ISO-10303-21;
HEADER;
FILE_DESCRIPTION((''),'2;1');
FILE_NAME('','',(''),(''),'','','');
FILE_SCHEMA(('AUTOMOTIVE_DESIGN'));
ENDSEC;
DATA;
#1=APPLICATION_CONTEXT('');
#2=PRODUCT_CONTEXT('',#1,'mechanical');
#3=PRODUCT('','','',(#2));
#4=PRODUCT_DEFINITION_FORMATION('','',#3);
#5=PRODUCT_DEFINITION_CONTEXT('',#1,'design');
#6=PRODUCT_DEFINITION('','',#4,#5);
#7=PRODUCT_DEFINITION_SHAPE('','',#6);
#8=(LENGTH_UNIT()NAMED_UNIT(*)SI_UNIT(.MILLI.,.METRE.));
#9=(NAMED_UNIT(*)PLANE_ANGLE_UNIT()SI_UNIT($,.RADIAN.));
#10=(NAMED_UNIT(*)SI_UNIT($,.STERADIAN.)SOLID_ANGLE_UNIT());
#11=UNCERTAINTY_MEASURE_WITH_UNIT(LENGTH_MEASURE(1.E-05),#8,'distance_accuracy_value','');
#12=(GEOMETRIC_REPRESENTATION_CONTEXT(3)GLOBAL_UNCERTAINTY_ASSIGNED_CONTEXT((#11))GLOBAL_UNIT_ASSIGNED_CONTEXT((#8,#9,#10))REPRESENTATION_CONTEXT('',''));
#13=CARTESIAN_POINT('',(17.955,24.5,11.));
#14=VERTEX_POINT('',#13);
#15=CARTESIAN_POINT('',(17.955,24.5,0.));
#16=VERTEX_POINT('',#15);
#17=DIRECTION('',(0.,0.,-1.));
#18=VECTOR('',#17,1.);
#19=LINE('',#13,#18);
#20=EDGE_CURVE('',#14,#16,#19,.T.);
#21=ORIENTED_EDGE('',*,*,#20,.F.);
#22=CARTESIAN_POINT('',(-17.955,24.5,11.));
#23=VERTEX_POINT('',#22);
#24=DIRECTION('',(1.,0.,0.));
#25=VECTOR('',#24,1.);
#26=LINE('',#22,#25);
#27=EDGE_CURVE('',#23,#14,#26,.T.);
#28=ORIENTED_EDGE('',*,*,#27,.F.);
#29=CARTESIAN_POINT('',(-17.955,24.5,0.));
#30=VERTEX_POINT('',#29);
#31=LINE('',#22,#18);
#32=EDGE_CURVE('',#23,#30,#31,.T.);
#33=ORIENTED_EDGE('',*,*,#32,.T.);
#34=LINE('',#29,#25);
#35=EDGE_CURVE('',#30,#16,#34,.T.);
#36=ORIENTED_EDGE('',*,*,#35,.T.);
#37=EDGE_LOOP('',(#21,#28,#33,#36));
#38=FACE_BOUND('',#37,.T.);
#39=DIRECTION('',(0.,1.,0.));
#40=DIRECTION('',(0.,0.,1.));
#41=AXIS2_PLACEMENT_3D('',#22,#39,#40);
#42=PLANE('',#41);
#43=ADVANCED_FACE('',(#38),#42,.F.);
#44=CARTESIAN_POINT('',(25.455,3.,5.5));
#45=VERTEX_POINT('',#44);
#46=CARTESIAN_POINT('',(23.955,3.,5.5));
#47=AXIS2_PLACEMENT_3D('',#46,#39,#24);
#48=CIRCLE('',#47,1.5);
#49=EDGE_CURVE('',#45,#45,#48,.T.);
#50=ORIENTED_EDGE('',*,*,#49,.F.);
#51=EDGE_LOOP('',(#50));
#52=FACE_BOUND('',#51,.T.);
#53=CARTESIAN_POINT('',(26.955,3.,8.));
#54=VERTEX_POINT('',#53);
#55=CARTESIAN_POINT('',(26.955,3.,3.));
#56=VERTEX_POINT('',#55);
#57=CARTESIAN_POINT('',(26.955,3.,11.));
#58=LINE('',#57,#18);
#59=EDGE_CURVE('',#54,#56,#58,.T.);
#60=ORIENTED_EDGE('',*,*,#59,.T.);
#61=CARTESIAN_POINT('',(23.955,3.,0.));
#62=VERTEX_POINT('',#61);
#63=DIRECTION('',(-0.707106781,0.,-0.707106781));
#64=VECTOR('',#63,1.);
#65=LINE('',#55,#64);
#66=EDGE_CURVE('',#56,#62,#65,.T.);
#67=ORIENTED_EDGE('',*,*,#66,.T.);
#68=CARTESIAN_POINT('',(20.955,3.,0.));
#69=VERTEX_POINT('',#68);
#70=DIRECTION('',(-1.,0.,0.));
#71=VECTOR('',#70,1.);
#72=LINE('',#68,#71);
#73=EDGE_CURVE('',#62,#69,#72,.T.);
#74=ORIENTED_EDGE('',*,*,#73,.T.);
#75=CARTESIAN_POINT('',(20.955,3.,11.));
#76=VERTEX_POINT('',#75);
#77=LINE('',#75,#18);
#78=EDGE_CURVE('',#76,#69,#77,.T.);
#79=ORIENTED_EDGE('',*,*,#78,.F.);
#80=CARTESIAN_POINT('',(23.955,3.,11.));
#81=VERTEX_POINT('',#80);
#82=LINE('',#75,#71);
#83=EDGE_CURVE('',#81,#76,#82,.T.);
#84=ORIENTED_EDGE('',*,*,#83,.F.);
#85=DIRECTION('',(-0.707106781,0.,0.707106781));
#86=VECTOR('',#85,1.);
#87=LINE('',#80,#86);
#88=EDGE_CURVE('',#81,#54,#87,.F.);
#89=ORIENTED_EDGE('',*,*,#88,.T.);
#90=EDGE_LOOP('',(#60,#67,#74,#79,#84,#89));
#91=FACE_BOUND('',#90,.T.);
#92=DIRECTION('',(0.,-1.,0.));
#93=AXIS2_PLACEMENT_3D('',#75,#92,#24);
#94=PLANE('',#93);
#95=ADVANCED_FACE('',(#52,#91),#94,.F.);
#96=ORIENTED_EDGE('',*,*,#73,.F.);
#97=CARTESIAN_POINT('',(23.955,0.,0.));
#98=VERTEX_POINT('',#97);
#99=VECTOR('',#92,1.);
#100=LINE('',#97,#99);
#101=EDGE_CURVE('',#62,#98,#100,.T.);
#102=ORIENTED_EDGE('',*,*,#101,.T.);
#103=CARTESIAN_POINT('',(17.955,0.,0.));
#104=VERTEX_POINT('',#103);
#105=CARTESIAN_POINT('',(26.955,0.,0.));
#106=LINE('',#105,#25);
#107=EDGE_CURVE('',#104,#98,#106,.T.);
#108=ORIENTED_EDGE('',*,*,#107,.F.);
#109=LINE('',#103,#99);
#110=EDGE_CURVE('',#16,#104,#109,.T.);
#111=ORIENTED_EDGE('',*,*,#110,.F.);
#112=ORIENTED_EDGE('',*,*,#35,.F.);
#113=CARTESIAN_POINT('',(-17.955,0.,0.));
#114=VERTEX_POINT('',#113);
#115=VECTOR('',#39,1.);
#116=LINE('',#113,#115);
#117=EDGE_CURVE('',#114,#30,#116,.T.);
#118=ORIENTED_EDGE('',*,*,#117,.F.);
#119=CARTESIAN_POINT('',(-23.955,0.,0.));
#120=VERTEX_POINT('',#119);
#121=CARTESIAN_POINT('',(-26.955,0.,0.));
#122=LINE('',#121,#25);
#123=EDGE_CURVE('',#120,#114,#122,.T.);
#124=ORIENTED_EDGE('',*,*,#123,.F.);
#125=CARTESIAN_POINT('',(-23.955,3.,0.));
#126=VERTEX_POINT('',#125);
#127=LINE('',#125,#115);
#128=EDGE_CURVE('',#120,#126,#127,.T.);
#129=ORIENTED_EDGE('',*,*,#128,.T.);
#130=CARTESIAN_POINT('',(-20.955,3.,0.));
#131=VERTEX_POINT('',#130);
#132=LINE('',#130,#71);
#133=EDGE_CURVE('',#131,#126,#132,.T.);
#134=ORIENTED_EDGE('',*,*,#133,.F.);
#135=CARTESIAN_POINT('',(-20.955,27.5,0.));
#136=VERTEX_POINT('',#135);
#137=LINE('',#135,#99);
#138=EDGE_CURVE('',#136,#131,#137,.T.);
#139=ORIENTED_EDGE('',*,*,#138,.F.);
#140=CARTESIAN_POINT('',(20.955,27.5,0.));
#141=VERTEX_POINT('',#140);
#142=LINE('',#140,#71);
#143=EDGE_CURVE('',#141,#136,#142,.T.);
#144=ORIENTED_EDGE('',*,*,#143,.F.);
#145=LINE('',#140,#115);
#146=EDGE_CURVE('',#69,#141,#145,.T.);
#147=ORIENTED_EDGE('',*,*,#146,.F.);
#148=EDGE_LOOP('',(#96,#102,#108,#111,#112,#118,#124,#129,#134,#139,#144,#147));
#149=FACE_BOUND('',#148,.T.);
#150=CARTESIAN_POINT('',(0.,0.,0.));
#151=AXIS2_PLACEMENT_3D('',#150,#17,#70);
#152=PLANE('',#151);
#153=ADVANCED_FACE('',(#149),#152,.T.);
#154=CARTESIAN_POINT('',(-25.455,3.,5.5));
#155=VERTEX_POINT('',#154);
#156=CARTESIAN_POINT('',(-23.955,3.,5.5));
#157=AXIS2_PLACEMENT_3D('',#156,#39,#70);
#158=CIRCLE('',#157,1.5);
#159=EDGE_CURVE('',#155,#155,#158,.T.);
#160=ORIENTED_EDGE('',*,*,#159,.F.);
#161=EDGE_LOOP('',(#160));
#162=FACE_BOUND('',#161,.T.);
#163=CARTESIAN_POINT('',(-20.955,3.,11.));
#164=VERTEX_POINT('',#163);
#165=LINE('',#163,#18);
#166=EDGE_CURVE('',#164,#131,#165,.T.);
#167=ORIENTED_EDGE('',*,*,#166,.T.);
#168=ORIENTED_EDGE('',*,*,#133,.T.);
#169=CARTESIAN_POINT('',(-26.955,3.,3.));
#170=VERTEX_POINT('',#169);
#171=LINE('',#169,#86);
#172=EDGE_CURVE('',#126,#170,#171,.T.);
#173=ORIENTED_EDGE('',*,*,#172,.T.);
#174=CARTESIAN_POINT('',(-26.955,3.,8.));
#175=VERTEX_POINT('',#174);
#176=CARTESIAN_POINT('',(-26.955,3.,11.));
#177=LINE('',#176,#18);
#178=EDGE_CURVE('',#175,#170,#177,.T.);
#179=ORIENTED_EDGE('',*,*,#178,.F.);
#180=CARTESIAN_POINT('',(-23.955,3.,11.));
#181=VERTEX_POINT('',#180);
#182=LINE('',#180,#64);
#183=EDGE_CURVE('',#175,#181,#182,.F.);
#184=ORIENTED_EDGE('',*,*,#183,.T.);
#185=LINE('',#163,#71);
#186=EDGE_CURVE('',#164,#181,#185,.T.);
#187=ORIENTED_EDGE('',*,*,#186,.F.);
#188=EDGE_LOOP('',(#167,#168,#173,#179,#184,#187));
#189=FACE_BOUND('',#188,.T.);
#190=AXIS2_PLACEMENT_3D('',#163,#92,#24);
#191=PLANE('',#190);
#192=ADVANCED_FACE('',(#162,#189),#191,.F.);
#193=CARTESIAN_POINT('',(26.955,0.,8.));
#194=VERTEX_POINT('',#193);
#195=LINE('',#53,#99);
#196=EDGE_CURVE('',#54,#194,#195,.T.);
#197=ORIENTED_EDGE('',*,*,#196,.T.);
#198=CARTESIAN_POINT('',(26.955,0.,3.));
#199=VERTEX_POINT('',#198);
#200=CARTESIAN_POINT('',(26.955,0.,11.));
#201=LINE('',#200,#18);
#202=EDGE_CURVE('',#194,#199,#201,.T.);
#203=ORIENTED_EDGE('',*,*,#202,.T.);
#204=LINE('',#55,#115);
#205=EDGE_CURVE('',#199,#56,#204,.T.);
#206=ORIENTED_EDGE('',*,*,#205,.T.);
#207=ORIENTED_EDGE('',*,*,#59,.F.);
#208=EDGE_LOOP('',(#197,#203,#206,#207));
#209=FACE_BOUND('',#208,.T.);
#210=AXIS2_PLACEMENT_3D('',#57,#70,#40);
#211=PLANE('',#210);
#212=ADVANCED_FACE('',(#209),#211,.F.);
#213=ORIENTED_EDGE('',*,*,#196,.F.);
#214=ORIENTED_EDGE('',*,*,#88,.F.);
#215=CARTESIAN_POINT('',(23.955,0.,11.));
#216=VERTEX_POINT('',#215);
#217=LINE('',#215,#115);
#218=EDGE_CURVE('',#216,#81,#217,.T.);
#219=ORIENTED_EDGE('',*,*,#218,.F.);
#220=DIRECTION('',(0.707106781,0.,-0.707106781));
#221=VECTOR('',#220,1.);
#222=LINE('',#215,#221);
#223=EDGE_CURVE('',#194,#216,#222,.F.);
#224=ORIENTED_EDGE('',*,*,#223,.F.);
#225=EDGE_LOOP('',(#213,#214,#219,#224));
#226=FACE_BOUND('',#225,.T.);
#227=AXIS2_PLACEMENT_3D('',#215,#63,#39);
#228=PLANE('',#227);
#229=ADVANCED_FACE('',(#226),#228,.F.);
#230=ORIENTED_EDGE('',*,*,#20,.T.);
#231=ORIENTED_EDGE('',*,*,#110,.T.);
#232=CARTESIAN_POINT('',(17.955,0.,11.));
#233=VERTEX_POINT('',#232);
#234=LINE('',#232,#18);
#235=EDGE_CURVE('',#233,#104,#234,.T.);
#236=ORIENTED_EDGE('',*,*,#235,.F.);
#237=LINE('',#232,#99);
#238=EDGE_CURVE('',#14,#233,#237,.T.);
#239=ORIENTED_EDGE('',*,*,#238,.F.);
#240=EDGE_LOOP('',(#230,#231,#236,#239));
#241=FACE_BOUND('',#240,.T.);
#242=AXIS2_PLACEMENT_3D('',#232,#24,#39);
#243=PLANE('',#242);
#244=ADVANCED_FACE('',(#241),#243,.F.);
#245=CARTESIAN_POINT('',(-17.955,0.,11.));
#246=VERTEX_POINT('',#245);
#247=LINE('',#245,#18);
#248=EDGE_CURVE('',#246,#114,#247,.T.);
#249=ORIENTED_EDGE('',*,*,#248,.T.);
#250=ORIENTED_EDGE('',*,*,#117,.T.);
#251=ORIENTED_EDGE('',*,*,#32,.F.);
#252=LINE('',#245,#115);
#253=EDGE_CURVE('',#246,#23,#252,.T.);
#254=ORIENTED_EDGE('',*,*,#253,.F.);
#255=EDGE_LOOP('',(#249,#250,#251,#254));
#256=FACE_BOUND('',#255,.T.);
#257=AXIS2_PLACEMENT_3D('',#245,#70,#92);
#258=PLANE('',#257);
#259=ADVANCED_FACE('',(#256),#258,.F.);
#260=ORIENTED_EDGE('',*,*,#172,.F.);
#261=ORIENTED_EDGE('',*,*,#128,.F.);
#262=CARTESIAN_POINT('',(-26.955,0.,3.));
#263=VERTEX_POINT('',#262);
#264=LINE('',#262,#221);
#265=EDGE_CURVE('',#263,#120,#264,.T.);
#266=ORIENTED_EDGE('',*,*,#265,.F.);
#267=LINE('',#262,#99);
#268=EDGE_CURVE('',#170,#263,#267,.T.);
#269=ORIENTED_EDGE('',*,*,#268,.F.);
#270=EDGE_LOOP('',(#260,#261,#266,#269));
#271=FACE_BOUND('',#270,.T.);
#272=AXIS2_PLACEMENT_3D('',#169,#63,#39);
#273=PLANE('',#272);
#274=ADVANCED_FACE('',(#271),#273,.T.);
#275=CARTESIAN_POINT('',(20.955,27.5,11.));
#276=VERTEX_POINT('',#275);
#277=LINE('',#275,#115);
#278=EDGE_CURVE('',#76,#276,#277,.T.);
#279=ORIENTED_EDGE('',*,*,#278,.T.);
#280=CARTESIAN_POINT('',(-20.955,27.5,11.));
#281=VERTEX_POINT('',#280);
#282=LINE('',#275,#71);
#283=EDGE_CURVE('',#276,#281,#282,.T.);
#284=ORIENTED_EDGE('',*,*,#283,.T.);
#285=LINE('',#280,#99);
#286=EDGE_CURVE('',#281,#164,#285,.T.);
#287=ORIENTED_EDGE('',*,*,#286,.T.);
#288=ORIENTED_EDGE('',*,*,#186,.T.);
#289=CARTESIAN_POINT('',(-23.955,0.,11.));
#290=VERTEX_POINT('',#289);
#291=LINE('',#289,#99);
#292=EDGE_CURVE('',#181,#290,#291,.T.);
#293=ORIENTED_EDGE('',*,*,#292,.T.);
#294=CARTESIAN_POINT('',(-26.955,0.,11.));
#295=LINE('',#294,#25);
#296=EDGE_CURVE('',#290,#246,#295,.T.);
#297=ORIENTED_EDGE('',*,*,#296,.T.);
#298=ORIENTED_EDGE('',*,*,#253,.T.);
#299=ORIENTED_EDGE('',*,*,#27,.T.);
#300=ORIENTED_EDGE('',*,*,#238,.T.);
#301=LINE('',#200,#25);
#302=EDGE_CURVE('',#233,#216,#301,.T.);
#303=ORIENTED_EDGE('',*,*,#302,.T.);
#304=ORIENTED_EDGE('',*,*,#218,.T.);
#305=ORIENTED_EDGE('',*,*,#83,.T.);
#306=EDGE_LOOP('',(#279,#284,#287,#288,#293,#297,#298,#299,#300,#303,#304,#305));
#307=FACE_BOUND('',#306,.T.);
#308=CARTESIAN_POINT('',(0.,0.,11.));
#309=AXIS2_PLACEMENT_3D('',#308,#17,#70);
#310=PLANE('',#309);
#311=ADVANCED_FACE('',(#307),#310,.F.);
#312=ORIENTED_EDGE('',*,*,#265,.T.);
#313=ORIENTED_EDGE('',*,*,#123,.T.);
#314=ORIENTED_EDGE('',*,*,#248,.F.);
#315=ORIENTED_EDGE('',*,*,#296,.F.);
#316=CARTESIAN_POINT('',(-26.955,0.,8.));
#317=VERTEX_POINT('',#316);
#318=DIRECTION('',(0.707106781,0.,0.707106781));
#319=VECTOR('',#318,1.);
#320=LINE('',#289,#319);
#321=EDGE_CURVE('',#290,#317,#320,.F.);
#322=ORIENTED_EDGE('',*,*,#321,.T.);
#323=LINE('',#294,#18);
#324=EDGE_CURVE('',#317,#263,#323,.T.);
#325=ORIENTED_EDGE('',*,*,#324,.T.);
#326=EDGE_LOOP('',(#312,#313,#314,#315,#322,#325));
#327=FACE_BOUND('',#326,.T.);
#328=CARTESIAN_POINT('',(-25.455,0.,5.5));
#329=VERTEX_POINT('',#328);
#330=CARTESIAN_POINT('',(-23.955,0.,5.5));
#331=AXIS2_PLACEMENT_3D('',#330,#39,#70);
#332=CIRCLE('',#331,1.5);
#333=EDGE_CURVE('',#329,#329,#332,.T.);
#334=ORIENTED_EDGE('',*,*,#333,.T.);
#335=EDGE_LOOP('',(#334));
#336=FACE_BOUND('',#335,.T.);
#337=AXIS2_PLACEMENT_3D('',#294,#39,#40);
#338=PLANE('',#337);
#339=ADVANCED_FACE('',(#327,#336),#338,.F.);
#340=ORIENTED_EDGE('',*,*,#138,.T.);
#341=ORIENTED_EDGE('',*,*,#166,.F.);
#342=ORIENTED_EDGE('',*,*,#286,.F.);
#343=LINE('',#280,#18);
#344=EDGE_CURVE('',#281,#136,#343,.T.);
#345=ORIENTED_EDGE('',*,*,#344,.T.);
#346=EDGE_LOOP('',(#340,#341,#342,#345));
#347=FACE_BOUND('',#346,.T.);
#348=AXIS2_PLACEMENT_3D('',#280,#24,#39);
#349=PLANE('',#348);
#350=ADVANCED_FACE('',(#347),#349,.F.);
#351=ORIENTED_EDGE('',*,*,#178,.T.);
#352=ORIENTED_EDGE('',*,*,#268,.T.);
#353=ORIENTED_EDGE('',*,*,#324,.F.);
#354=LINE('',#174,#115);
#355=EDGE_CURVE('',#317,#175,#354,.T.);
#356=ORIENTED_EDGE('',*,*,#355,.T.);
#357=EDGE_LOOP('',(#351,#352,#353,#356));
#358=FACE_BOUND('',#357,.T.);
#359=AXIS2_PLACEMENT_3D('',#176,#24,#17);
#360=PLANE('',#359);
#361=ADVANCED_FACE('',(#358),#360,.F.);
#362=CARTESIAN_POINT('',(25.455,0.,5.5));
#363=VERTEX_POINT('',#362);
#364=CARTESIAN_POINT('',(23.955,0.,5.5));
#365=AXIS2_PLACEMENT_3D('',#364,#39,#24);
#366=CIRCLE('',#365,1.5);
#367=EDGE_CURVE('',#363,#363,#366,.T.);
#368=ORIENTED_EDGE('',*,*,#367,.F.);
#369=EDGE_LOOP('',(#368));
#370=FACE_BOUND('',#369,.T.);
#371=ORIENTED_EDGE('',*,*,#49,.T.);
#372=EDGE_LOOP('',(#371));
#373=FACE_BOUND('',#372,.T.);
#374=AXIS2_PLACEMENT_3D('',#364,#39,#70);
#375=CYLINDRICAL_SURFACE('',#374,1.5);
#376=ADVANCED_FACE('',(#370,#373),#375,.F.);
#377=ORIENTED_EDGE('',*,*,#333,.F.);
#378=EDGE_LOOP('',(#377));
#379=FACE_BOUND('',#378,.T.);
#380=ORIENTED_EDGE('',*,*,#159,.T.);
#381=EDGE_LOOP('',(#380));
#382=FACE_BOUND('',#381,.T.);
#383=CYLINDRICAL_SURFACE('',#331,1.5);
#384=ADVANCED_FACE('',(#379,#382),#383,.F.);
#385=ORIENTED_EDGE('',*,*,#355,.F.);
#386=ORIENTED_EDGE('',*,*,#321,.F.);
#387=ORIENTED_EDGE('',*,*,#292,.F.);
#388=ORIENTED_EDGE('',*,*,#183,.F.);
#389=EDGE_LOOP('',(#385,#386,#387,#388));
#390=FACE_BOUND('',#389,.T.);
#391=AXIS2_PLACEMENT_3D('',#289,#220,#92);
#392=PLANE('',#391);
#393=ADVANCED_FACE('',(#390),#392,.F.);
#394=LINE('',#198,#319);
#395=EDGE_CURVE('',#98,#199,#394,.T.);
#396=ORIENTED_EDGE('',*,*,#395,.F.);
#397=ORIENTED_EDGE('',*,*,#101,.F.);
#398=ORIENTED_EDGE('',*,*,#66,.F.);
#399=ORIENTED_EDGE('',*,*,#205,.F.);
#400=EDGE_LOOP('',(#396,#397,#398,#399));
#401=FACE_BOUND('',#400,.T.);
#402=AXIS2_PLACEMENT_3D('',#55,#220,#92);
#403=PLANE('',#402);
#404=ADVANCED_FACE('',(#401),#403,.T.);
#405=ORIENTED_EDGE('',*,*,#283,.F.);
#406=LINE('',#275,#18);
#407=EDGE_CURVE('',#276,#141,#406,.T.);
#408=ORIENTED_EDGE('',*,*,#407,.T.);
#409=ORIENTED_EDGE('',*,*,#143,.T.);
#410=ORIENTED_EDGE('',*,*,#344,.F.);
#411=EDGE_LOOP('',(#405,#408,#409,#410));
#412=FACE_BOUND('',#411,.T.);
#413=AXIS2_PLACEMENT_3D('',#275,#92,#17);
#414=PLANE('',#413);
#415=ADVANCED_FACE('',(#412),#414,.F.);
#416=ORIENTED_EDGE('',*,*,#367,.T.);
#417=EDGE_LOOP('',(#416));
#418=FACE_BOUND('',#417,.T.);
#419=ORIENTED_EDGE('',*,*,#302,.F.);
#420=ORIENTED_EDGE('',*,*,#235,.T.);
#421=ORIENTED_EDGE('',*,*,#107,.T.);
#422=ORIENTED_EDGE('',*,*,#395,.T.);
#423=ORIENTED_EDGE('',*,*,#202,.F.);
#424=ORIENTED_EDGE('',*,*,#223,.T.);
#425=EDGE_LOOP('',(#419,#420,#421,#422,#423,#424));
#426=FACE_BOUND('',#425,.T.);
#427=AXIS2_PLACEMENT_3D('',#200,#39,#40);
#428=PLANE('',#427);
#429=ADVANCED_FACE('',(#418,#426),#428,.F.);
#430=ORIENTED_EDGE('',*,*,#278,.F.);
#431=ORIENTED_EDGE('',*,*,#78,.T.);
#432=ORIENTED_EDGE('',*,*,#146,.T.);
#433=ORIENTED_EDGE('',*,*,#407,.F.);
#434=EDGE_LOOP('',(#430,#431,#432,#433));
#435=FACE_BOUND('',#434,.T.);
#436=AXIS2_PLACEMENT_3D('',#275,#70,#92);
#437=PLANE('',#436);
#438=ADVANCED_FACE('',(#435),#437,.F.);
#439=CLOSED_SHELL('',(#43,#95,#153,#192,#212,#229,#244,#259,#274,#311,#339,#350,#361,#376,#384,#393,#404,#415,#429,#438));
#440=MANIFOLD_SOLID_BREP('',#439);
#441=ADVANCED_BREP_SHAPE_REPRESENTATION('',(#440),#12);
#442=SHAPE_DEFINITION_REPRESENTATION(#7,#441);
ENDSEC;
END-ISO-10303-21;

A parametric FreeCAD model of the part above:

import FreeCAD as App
import Part
import Sketcher
Q = App.Units.Quantity


def edges_at(feature, points):
    """Names of the edges that pass closest to the given points."""
    edges = feature.Shape.Edges
    near = lambda p: min(range(len(edges)), key=lambda i: edges[i].distToShape(Part.Vertex(*p))[0])
    return sorted({f"Edge{near(p) + 1}" for p in points})


def add_polygon(sketch, points):
    """Adds a closed chain of lines whose ends are joined by coincident constraints."""
    first, n = sketch.GeometryCount, len(points)
    for a, b in zip(points, points[1:] + points[:1]):
        sketch.addGeometry(Part.LineSegment(App.Vector(*a, 0), App.Vector(*b, 0)), False)
    for i in range(n):
        sketch.addConstraint(Sketcher.Constraint("Coincident", first + i, 2, first + (i + 1) % n, 1))

doc = App.newDocument("Part")
body = doc.addObject("PartDesign::Body", "Body")

# Sketch on XY plane
sketch1 = body.newObject("Sketcher::SketchObject", "Sketch")
sketch1.AttachmentSupport = (doc.getObject("XY_Plane"), [""])
sketch1.MapMode = "FlatFace"
add_polygon(sketch1, [(-26.955, 0), (-17.955, 0), (-17.955, 24.5), (17.955, 24.5), (17.955, 0), (26.955, 0), (26.955, 3), (20.955, 3), (20.955, 27.5), (-20.955, 27.5), (-20.955, 3), (-26.955, 3)])  # lines 0-11
sketch1.addConstraint(Sketcher.Constraint("Horizontal", 0))
sketch1.addConstraint(Sketcher.Constraint("Vertical", 1))
sketch1.addConstraint(Sketcher.Constraint("Horizontal", 2))
sketch1.addConstraint(Sketcher.Constraint("Vertical", 3))
sketch1.addConstraint(Sketcher.Constraint("Horizontal", 4))
sketch1.addConstraint(Sketcher.Constraint("Vertical", 5))
sketch1.addConstraint(Sketcher.Constraint("Horizontal", 6))
sketch1.addConstraint(Sketcher.Constraint("Vertical", 7))
sketch1.addConstraint(Sketcher.Constraint("Horizontal", 8))
sketch1.addConstraint(Sketcher.Constraint("Vertical", 9))
sketch1.addConstraint(Sketcher.Constraint("Horizontal", 10))
sketch1.addConstraint(Sketcher.Constraint("Vertical", 11))
sketch1.addConstraint(Sketcher.Constraint("Symmetric", 0, 2, 3, 2, -1, 1))
sketch1.addConstraint(Sketcher.Constraint("Symmetric", 6, 2, 9, 2, -2))
sketch1.addConstraint(Sketcher.Constraint("Symmetric", 4, 2, 11, 2, -2))
sketch1.addConstraint(Sketcher.Constraint("Equal", 3, 7))
sketch1.addConstraint(Sketcher.Constraint("DistanceX", 0, 1, 0, 2, Q("9 mm")))
sketch1.addConstraint(Sketcher.Constraint("DistanceX", 6, 2, 6, 1, Q("6 mm")))
sketch1.addConstraint(Sketcher.Constraint("DistanceY", 5, 1, 5, 2, Q("3 mm")))
sketch1.addConstraint(Sketcher.Constraint("DistanceY", 1, 1, 1, 2, Q("24.5 mm")))
sketch1.addConstraint(Sketcher.Constraint("DistanceX", 2, 1, 2, 2, Q("35.91 mm")))
pad1 = body.newObject("PartDesign::Pad", "Pad")
pad1.Profile = sketch1
pad1.Length = 11
doc.recompute()

chamfer = body.newObject("PartDesign::Chamfer", "Chamfer")
chamfer.Base = (pad1, edges_at(pad1, [
    (-26.955, 1.5, 0),
    (26.955, 1.5, 0),
    (26.955, 1.5, 11),
    (-26.955, 1.5, 11),
]))
chamfer.Size = 3

# Sketch on XZ plane
sketch2 = body.newObject("Sketcher::SketchObject", "Sketch001")
sketch2.AttachmentSupport = (doc.getObject("XZ_Plane"), [""])
sketch2.MapMode = "FlatFace"
sketch2.AttachmentOffset = App.Placement(App.Vector(0, 0, -3), App.Rotation())
sketch2.addGeometry(Part.Circle(App.Vector(-23.955, 5.5, 0), App.Vector(0, 0, 1), 1.5), False)
sketch2.addGeometry(Part.Circle(App.Vector(23.955, 5.5, 0), App.Vector(0, 0, 1), 1.5), False)
sketch2.addConstraint(Sketcher.Constraint("Equal", 0, 1))
sketch2.addConstraint(Sketcher.Constraint("Symmetric", 0, 3, 1, 3, -2))
sketch2.addConstraint(Sketcher.Constraint("Diameter", 0, Q("3 mm")))
sketch2.addConstraint(Sketcher.Constraint("DistanceY", -1, 1, 0, 3, Q("5.5 mm")))
sketch2.addConstraint(Sketcher.Constraint("DistanceX", 0, 3, 1, 3, Q("47.91 mm")))
pocket1 = body.newObject("PartDesign::Pocket", "Pocket")
pocket1.Profile = sketch2
pocket1.Type = "ThroughAll"
pocket1.Reversed = True

doc.recompute()
